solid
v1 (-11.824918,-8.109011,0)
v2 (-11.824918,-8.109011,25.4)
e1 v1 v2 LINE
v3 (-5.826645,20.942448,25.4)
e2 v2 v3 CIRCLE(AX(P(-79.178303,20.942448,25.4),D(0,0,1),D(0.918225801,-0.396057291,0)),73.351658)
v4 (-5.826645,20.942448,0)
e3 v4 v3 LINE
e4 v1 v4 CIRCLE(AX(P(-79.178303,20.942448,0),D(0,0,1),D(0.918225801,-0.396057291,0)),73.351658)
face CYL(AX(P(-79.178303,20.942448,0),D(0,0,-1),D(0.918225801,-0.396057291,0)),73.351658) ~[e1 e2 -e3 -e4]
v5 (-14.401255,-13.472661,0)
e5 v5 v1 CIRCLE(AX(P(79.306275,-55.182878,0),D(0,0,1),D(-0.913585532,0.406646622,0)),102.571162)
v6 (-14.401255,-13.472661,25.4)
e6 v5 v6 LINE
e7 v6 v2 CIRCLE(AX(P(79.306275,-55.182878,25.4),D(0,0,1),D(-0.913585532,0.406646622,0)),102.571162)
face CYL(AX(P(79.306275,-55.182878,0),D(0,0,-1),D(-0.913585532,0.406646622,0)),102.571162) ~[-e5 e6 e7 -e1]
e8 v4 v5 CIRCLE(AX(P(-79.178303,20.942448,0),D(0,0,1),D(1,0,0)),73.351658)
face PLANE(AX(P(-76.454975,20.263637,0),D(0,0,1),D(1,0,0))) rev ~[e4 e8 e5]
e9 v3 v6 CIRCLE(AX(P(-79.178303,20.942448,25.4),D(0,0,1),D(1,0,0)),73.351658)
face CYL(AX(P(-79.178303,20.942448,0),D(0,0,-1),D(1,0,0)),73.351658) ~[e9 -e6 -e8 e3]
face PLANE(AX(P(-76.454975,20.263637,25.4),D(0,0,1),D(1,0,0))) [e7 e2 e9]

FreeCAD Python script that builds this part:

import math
import FreeCAD as App
import Part
import Sketcher
from FreeCAD import Vector
Q = App.Units.Quantity

doc = App.newDocument("Part")
body = doc.addObject("PartDesign::Body", "Body")

sketch1 = doc.addObject("Sketcher::SketchObject", "Sketch")
body.addObject(sketch1)
sketch1.AttachmentSupport = (doc.XY_Plane, [""])
sketch1.MapMode = "FlatFace"
sketch1.addGeometry(Part.ArcOfCircle(Part.Circle(Vector(-79.178303, 20.942448, 0), Vector(0, 0, 1), 73.351658), math.radians(-23.331931), math.radians(0)), False)
sketch1.addGeometry(Part.ArcOfCircle(Part.Circle(Vector(-79.178303, 20.942448, 0), Vector(0, 0, 1), 73.351658), math.radians(0), math.radians(332.018938)), False)
sketch1.addGeometry(Part.ArcOfCircle(Part.Circle(Vector(79.306275, -55.182878, 0), Vector(0, 0, 1), 102.571162), math.radians(156.005646), math.radians(512.681361)), False)
sketch1.addConstraint(Sketcher.Constraint("Tangent", 0, 2, 1, 1))
sketch1.addConstraint(Sketcher.Constraint("Coincident", 1, 2, 2, 1))
sketch1.addConstraint(Sketcher.Constraint("Coincident", 2, 2, 0, 1))
sketch1.addConstraint(Sketcher.Constraint("Equal", 0, 1))
sketch1.addConstraint(Sketcher.Constraint("Horizontal", 1, 3, 0, 2))
sketch1.addConstraint(Sketcher.Constraint("Radius", 0, 73.351658))
sketch1.addConstraint(Sketcher.Constraint("Radius", 2, 102.571162))
sketch1.addConstraint(Sketcher.Constraint("DistanceY", 1, 2, -1, 1, 13.472661))
sketch1.addConstraint(Sketcher.Constraint("DistanceX", 2, 2, -1, 1, 11.824918))
sketch1.addConstraint(Sketcher.Constraint("DistanceY", 2, 2, -1, 1, 8.109011))
sketch1.addConstraint(Sketcher.Constraint("DistanceX", 0, 3, 2, 3, 158.484578))
pad1 = doc.addObject("PartDesign::Pad", "Pad")
body.addObject(pad1)
pad1.Profile = sketch1
pad1.Length = Q("1 in")

doc.recompute()
